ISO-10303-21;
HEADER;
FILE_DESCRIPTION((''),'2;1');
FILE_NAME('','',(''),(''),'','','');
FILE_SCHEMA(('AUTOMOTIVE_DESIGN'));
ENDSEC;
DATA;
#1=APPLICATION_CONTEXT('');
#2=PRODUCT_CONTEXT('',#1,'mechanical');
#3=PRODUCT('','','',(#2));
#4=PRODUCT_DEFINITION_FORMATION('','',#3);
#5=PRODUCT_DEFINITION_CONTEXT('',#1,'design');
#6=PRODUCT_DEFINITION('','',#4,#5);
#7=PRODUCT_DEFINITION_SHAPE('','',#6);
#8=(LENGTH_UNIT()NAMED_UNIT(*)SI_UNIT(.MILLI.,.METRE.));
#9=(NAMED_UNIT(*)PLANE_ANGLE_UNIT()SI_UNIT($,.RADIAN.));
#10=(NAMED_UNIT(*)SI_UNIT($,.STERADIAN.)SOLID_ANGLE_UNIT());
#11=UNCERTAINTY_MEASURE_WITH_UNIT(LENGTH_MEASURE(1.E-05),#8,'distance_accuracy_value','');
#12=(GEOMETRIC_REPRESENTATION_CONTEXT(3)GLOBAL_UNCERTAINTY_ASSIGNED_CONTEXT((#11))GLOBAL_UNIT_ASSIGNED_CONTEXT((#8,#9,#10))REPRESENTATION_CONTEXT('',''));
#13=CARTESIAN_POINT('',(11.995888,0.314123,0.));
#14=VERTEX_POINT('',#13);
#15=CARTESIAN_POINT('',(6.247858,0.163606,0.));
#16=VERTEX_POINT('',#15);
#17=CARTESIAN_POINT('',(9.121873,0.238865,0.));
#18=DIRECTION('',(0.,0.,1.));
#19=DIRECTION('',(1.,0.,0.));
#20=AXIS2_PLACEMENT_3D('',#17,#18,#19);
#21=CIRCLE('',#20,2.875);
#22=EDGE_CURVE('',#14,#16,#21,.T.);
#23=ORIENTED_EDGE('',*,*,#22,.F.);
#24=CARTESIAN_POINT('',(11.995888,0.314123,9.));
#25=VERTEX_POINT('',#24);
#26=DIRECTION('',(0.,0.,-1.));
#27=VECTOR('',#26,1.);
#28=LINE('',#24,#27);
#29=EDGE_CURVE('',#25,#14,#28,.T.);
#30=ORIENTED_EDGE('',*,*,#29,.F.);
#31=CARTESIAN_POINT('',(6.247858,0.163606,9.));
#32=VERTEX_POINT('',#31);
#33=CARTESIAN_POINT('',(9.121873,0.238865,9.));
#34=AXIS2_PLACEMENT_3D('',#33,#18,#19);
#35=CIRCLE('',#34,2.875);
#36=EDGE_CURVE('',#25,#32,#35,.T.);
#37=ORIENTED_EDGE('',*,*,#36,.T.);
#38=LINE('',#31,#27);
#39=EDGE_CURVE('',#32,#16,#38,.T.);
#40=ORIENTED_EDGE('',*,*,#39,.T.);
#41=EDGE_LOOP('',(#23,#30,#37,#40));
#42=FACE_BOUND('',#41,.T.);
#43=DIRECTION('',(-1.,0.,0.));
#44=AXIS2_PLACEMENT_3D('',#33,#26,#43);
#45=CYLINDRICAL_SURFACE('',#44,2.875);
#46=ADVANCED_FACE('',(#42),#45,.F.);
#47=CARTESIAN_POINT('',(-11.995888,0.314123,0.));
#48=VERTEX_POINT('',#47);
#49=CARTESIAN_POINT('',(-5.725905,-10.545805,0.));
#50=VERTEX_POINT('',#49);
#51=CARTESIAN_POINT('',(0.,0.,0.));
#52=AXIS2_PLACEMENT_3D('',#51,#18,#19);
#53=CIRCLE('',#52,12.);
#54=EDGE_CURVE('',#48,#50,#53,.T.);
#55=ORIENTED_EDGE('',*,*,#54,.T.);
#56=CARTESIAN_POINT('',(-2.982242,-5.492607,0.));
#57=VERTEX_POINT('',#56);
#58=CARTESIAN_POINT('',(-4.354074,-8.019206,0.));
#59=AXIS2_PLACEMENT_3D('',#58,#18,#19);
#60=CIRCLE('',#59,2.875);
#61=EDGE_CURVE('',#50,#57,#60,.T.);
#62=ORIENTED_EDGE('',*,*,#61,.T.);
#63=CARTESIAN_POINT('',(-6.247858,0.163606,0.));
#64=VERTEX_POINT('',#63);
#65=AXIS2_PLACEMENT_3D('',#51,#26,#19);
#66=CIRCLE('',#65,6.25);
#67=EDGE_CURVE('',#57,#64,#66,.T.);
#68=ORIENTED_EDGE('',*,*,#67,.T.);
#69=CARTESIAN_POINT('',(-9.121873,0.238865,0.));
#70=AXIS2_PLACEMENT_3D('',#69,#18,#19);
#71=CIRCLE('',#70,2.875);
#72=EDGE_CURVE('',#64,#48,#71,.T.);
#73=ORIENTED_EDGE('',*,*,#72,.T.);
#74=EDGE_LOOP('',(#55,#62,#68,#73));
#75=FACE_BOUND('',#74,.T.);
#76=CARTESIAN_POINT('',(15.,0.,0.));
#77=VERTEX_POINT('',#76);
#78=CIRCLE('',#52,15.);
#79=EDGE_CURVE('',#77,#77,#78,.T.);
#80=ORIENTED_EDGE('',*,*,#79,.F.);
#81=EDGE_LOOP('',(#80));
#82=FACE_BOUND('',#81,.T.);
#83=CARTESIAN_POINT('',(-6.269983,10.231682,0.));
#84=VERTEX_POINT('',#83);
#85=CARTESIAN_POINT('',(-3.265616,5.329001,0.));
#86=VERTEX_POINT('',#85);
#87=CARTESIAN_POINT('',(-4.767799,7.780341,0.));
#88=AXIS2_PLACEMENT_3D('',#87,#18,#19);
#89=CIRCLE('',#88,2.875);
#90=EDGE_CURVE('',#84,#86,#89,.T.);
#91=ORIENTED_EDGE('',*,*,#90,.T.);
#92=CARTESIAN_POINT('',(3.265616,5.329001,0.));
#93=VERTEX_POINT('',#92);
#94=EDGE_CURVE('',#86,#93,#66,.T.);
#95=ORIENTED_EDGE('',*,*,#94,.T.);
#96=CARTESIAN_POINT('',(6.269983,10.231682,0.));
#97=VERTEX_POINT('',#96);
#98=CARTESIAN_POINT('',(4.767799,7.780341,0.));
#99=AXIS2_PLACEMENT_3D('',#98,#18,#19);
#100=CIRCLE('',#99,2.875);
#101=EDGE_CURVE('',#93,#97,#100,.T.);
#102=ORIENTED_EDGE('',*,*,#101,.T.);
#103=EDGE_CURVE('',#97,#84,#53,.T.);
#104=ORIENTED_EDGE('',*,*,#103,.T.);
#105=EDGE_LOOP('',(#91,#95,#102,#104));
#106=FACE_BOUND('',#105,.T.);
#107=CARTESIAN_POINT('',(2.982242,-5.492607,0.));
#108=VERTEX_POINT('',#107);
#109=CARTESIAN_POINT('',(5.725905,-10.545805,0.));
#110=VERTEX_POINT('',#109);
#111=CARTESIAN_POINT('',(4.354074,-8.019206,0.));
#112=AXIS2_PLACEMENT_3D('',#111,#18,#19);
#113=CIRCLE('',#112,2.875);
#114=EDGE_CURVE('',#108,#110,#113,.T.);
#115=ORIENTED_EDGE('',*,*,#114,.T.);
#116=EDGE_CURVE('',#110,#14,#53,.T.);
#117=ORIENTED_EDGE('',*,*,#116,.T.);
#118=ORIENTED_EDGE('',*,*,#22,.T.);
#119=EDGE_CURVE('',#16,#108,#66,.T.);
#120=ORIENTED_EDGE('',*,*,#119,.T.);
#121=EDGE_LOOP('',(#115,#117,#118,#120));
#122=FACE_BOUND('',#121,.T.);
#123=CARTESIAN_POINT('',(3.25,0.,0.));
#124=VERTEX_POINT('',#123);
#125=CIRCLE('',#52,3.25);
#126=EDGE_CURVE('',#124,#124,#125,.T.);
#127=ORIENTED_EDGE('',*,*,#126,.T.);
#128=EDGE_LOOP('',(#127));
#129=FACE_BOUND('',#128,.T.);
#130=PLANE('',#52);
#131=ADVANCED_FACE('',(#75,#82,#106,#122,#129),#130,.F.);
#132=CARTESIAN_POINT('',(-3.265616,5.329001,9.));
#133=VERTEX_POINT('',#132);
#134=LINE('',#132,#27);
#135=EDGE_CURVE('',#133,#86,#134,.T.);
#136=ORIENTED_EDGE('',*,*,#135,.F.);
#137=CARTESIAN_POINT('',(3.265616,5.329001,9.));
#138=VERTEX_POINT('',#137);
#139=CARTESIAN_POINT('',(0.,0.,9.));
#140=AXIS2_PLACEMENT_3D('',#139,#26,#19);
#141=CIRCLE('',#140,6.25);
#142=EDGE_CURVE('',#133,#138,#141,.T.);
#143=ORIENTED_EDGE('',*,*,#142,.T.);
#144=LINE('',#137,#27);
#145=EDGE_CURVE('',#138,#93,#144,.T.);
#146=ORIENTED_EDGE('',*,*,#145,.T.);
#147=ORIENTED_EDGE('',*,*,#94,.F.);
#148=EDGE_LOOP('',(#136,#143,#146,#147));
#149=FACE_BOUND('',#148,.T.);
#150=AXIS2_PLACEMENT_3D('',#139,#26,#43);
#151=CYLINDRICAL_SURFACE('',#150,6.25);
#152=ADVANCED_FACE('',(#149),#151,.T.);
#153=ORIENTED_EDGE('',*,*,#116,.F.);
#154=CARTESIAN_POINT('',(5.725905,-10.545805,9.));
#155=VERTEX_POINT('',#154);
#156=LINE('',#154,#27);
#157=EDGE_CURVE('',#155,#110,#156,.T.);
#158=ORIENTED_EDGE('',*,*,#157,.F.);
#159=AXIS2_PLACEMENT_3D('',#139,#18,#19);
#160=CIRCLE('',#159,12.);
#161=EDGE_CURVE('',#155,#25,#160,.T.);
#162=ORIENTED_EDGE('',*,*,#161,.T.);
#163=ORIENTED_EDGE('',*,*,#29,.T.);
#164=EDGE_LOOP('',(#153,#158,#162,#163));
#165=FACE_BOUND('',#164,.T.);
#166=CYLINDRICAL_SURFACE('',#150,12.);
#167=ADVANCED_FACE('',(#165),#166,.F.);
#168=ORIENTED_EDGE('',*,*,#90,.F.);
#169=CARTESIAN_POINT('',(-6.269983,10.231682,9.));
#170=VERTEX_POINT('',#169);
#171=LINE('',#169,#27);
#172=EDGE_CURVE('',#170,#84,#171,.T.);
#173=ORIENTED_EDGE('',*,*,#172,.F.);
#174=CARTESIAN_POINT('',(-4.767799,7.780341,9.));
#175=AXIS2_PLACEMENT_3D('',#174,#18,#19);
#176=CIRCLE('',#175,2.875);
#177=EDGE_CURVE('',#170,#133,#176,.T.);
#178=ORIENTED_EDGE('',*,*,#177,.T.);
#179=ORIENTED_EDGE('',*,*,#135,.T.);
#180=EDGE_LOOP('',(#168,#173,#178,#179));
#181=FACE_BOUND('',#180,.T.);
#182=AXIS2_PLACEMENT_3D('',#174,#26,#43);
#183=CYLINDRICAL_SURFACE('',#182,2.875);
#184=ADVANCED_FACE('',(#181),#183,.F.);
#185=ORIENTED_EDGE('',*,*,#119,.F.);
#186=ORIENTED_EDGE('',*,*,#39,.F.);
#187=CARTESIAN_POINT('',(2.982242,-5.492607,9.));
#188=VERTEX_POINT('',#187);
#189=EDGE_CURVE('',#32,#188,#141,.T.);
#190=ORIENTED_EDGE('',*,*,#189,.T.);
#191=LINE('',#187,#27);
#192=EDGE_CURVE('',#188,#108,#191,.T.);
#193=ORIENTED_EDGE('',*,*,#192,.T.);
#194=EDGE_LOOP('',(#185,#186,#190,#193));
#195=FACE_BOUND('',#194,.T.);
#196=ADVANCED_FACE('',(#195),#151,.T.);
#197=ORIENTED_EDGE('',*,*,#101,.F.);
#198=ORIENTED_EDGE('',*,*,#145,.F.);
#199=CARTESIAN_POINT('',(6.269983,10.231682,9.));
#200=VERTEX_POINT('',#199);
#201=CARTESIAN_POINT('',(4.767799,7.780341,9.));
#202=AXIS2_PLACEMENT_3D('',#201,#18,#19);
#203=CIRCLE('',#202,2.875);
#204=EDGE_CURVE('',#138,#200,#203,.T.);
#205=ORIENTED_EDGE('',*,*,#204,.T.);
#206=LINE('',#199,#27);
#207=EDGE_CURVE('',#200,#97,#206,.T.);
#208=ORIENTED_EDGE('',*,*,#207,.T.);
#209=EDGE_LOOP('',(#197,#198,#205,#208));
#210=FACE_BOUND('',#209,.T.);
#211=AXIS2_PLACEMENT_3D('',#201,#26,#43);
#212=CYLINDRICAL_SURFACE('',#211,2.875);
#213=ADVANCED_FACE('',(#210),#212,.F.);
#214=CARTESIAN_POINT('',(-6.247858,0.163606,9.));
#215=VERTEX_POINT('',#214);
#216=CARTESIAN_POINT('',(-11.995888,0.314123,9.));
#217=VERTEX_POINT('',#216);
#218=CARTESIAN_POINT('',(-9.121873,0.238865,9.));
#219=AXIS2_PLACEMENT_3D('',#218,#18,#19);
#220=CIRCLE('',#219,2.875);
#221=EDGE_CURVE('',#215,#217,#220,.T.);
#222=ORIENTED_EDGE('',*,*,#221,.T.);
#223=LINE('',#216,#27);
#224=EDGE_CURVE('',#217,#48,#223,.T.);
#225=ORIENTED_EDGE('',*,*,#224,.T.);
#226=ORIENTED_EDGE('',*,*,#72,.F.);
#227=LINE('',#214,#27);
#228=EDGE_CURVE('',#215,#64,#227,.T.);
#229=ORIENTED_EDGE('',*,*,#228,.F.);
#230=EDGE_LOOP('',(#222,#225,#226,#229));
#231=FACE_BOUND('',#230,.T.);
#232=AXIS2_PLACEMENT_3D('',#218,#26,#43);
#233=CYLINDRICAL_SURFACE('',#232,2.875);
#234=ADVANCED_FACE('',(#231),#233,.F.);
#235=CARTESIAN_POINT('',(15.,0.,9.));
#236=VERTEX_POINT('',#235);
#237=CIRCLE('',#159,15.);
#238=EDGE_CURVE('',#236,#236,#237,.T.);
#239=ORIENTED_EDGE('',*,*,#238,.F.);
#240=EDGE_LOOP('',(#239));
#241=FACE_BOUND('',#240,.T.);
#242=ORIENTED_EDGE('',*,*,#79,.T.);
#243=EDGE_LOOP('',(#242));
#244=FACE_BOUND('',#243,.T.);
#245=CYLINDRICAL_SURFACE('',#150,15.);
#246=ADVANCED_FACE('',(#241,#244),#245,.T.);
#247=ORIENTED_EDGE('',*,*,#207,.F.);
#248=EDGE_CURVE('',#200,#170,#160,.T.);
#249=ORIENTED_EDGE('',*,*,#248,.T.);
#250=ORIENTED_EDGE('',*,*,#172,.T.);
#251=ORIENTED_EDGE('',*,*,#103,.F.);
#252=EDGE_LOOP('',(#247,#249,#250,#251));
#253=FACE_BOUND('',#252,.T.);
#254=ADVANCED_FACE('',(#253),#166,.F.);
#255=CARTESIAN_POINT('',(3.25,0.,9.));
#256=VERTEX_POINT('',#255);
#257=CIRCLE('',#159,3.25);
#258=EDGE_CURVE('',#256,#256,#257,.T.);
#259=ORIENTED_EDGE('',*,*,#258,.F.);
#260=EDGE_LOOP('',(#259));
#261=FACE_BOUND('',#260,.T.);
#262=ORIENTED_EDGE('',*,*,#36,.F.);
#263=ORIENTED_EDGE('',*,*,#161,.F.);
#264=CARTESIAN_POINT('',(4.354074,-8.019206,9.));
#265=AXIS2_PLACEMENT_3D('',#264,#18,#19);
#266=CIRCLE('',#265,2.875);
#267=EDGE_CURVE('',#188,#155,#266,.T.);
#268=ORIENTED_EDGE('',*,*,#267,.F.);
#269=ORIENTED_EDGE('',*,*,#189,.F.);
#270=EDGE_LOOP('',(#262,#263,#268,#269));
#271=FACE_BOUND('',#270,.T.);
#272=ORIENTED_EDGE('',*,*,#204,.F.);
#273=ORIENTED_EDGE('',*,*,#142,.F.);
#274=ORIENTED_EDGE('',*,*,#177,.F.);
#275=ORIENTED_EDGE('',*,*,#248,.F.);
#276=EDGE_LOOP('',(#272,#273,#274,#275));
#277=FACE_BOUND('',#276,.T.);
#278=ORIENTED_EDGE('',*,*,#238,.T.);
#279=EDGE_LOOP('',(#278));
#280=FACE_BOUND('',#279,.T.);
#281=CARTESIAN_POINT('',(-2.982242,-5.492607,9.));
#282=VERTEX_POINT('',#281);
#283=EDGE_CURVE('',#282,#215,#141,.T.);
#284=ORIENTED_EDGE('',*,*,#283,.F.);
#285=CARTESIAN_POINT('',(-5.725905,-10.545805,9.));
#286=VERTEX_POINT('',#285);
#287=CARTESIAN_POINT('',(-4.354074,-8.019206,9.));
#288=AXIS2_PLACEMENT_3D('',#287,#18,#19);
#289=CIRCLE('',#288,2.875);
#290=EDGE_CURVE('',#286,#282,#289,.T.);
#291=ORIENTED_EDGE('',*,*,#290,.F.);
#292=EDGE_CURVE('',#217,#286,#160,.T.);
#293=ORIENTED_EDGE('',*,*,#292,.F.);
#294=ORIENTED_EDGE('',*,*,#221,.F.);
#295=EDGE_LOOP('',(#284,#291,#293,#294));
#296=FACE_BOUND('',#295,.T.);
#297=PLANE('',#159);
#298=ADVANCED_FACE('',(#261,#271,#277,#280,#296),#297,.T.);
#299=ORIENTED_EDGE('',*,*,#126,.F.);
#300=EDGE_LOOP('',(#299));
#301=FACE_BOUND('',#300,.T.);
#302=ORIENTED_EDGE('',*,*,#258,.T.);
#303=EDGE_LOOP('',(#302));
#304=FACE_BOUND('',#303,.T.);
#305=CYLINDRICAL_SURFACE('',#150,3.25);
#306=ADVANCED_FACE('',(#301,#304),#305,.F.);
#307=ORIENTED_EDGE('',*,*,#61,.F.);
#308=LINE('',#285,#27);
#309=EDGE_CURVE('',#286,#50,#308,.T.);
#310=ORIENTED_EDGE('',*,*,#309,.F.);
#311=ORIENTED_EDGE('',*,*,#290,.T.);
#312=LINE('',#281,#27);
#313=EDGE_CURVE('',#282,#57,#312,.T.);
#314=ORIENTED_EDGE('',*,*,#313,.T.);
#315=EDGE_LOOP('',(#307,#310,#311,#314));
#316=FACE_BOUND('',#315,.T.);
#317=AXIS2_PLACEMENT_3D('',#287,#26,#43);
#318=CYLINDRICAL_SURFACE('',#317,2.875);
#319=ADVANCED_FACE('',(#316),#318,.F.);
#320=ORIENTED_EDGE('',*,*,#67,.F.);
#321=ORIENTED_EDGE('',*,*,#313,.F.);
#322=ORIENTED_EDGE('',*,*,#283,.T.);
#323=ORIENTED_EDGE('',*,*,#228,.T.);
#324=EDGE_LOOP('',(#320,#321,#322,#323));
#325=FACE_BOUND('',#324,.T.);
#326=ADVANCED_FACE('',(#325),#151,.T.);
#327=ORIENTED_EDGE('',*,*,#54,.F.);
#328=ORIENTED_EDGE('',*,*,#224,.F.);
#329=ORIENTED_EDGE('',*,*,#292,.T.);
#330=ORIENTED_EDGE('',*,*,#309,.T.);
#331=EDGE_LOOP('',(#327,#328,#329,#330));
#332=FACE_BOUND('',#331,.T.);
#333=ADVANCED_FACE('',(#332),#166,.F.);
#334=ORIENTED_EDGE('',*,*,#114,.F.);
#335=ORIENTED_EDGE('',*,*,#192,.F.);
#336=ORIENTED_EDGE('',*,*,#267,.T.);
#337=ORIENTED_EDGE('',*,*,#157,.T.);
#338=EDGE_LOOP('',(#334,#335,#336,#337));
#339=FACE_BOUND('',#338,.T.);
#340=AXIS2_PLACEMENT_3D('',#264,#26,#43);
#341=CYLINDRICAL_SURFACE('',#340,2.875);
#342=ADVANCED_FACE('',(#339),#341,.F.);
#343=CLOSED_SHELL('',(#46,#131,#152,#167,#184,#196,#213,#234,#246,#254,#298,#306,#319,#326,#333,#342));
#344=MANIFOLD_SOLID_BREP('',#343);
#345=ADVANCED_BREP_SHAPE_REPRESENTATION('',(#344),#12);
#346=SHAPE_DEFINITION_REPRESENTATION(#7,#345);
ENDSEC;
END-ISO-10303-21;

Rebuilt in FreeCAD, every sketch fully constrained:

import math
import FreeCAD as App
import Part
import Sketcher

V = App.Vector

doc = App.newDocument("Part")
body = doc.addObject("PartDesign::Body", "Body")

# Sketch on XY plane
sketch1 = body.newObject("Sketcher::SketchObject", "Sketch")
sketch1.AttachmentSupport = (doc.getObject("XY_Plane"), [""])
sketch1.MapMode = "FlatFace"
sketch1.addGeometry(Part.Circle(V(0, 0, 0), V(0, 0, 1), 15), False)
sketch1.addGeometry(Part.ArcOfCircle(Part.Circle(V(0, 0, 0), V(0, 0, 1), 12), math.radians(178.5), math.radians(241.5)), False)
sketch1.addGeometry(Part.ArcOfCircle(Part.Circle(V(-9.121873, 0.238865, 0), V(0, 0, 1), 2.875), math.radians(-1.5), math.radians(178.5)), False)
sketch1.addGeometry(Part.ArcOfCircle(Part.Circle(V(0, 0, 0), V(0, 0, 1), 6.25), math.radians(178.5), math.radians(241.5)), False)
sketch1.addGeometry(Part.ArcOfCircle(Part.Circle(V(-4.354074, -8.019206, 0), V(0, 0, 1), 2.875), math.radians(-118.5), math.radians(61.5)), False)
sketch1.addGeometry(Part.Circle(V(0, 0, 0), V(0, 0, 1), 3.25), False)
sketch1.addGeometry(Part.ArcOfCircle(Part.Circle(V(0, 0, 0), V(0, 0, 1), 12), math.radians(-61.5), math.radians(1.5)), False)
sketch1.addGeometry(Part.ArcOfCircle(Part.Circle(V(4.354074, -8.019206, 0), V(0, 0, 1), 2.875), math.radians(118.5), math.radians(298.5)), False)
sketch1.addGeometry(Part.ArcOfCircle(Part.Circle(V(0, 0, 0), V(0, 0, 1), 6.25), math.radians(-61.5), math.radians(1.5)), False)
sketch1.addGeometry(Part.ArcOfCircle(Part.Circle(V(9.121873, 0.238865, 0), V(0, 0, 1), 2.875), math.radians(1.5), math.radians(181.5)), False)
sketch1.addGeometry(Part.ArcOfCircle(Part.Circle(V(0, 0, 0), V(0, 0, 1), 12), math.radians(58.5), math.radians(121.5)), False)
sketch1.addGeometry(Part.ArcOfCircle(Part.Circle(V(4.767799, 7.780341, 0), V(0, 0, 1), 2.875), math.radians(-121.5), math.radians(58.5)), False)
sketch1.addGeometry(Part.ArcOfCircle(Part.Circle(V(0, 0, 0), V(0, 0, 1), 6.25), math.radians(58.5), math.radians(121.5)), False)
sketch1.addGeometry(Part.ArcOfCircle(Part.Circle(V(-4.767799, 7.780341, 0), V(0, 0, 1), 2.875), math.radians(121.5), math.radians(301.5)), False)
sketch1.addConstraint(Sketcher.Constraint("Coincident", 1, 1, 2, 2))
sketch1.addConstraint(Sketcher.Constraint("Coincident", 2, 1, 3, 1))
sketch1.addConstraint(Sketcher.Constraint("Coincident", 3, 2, 4, 2))
sketch1.addConstraint(Sketcher.Constraint("Coincident", 4, 1, 1, 2))
sketch1.addConstraint(Sketcher.Constraint("Coincident", 6, 1, 7, 2))
sketch1.addConstraint(Sketcher.Constraint("Coincident", 7, 1, 8, 1))
sketch1.addConstraint(Sketcher.Constraint("Coincident", 8, 2, 9, 2))
sketch1.addConstraint(Sketcher.Constraint("Coincident", 9, 1, 6, 2))
sketch1.addConstraint(Sketcher.Constraint("Coincident", 10, 1, 11, 2))
sketch1.addConstraint(Sketcher.Constraint("Coincident", 11, 1, 12, 1))
sketch1.addConstraint(Sketcher.Constraint("Coincident", 12, 2, 13, 2))
sketch1.addConstraint(Sketcher.Constraint("Coincident", 13, 1, 10, 2))
sketch1.addConstraint(Sketcher.Constraint("Coincident", 0, 3, -1, 1))
sketch1.addConstraint(Sketcher.Constraint("Coincident", 1, 3, -1, 1))
sketch1.addConstraint(Sketcher.Constraint("Coincident", 3, 3, -1, 1))
sketch1.addConstraint(Sketcher.Constraint("Coincident", 5, 3, -1, 1))
sketch1.addConstraint(Sketcher.Constraint("Coincident", 6, 3, -1, 1))
sketch1.addConstraint(Sketcher.Constraint("Coincident", 8, 3, -1, 1))
sketch1.addConstraint(Sketcher.Constraint("Coincident", 10, 3, -1, 1))
sketch1.addConstraint(Sketcher.Constraint("Coincident", 12, 3, -1, 1))
sketch1.addConstraint(Sketcher.Constraint("Diameter", 0, 30.0))
sketch1.addConstraint(Sketcher.Constraint("Radius", 1, 12.0))
sketch1.addConstraint(Sketcher.Constraint("Radius", 6, 12.0))
sketch1.addConstraint(Sketcher.Constraint("Radius", 10, 12.0))
sketch1.addConstraint(Sketcher.Constraint("Diameter", 5, 6.5))
sketch1.addConstraint(Sketcher.Constraint("Radius", 3, 6.25))
sketch1.addConstraint(Sketcher.Constraint("Radius", 8, 6.25))
sketch1.addConstraint(Sketcher.Constraint("Radius", 12, 6.25))
sketch1.addConstraint(Sketcher.Constraint("DistanceY", -1, 1, 11, 1, 5.329001))
sketch1.addConstraint(Sketcher.Constraint("DistanceY", -1, 1, 12, 2, 5.329001))
sketch1.addConstraint(Sketcher.Constraint("DistanceX", -1, 1, 11, 3, 4.767799))
sketch1.addConstraint(Sketcher.Constraint("DistanceX", 13, 3, -1, 1, 4.767799))
sketch1.addConstraint(Sketcher.Constraint("DistanceX", 2, 3, 4, 3, 4.767799))
sketch1.addConstraint(Sketcher.Constraint("DistanceY", 4, 3, 3, 2, 2.526599))
sketch1.addConstraint(Sketcher.Constraint("DistanceY", 4, 1, 4, 3, 2.526599))
sketch1.addConstraint(Sketcher.Constraint("DistanceY", 4, 1, 7, 3, 2.526599))
sketch1.addConstraint(Sketcher.Constraint("DistanceY", 6, 1, 7, 3, 2.526599))
sketch1.addConstraint(Sketcher.Constraint("DistanceY", 7, 3, 7, 1, 2.526599))
sketch1.addConstraint(Sketcher.Constraint("DistanceX", 13, 1, 11, 1, 9.535599))
sketch1.addConstraint(Sketcher.Constraint("DistanceX", 2, 1, -1, 1, 6.247858))
sketch1.addConstraint(Sketcher.Constraint("DistanceX", -1, 1, 8, 2, 6.247858))
sketch1.addConstraint(Sketcher.Constraint("DistanceY", -1, 1, 10, 1, 10.231682))
sketch1.addConstraint(Sketcher.Constraint("DistanceY", 4, 3, 2, 3, 8.258071))
sketch1.addConstraint(Sketcher.Constraint("DistanceY", 2, 3, 1, 1, 0.075259))
sketch1.addConstraint(Sketcher.Constraint("DistanceY", 6, 1, 9, 3, 10.78467))
sketch1.addConstraint(Sketcher.Constraint("DistanceY", 9, 3, 9, 1, 0.075259))
pad1 = body.newObject("PartDesign::Pad", "Pad")
pad1.Profile = sketch1
pad1.Length = 9

doc.recompute()
